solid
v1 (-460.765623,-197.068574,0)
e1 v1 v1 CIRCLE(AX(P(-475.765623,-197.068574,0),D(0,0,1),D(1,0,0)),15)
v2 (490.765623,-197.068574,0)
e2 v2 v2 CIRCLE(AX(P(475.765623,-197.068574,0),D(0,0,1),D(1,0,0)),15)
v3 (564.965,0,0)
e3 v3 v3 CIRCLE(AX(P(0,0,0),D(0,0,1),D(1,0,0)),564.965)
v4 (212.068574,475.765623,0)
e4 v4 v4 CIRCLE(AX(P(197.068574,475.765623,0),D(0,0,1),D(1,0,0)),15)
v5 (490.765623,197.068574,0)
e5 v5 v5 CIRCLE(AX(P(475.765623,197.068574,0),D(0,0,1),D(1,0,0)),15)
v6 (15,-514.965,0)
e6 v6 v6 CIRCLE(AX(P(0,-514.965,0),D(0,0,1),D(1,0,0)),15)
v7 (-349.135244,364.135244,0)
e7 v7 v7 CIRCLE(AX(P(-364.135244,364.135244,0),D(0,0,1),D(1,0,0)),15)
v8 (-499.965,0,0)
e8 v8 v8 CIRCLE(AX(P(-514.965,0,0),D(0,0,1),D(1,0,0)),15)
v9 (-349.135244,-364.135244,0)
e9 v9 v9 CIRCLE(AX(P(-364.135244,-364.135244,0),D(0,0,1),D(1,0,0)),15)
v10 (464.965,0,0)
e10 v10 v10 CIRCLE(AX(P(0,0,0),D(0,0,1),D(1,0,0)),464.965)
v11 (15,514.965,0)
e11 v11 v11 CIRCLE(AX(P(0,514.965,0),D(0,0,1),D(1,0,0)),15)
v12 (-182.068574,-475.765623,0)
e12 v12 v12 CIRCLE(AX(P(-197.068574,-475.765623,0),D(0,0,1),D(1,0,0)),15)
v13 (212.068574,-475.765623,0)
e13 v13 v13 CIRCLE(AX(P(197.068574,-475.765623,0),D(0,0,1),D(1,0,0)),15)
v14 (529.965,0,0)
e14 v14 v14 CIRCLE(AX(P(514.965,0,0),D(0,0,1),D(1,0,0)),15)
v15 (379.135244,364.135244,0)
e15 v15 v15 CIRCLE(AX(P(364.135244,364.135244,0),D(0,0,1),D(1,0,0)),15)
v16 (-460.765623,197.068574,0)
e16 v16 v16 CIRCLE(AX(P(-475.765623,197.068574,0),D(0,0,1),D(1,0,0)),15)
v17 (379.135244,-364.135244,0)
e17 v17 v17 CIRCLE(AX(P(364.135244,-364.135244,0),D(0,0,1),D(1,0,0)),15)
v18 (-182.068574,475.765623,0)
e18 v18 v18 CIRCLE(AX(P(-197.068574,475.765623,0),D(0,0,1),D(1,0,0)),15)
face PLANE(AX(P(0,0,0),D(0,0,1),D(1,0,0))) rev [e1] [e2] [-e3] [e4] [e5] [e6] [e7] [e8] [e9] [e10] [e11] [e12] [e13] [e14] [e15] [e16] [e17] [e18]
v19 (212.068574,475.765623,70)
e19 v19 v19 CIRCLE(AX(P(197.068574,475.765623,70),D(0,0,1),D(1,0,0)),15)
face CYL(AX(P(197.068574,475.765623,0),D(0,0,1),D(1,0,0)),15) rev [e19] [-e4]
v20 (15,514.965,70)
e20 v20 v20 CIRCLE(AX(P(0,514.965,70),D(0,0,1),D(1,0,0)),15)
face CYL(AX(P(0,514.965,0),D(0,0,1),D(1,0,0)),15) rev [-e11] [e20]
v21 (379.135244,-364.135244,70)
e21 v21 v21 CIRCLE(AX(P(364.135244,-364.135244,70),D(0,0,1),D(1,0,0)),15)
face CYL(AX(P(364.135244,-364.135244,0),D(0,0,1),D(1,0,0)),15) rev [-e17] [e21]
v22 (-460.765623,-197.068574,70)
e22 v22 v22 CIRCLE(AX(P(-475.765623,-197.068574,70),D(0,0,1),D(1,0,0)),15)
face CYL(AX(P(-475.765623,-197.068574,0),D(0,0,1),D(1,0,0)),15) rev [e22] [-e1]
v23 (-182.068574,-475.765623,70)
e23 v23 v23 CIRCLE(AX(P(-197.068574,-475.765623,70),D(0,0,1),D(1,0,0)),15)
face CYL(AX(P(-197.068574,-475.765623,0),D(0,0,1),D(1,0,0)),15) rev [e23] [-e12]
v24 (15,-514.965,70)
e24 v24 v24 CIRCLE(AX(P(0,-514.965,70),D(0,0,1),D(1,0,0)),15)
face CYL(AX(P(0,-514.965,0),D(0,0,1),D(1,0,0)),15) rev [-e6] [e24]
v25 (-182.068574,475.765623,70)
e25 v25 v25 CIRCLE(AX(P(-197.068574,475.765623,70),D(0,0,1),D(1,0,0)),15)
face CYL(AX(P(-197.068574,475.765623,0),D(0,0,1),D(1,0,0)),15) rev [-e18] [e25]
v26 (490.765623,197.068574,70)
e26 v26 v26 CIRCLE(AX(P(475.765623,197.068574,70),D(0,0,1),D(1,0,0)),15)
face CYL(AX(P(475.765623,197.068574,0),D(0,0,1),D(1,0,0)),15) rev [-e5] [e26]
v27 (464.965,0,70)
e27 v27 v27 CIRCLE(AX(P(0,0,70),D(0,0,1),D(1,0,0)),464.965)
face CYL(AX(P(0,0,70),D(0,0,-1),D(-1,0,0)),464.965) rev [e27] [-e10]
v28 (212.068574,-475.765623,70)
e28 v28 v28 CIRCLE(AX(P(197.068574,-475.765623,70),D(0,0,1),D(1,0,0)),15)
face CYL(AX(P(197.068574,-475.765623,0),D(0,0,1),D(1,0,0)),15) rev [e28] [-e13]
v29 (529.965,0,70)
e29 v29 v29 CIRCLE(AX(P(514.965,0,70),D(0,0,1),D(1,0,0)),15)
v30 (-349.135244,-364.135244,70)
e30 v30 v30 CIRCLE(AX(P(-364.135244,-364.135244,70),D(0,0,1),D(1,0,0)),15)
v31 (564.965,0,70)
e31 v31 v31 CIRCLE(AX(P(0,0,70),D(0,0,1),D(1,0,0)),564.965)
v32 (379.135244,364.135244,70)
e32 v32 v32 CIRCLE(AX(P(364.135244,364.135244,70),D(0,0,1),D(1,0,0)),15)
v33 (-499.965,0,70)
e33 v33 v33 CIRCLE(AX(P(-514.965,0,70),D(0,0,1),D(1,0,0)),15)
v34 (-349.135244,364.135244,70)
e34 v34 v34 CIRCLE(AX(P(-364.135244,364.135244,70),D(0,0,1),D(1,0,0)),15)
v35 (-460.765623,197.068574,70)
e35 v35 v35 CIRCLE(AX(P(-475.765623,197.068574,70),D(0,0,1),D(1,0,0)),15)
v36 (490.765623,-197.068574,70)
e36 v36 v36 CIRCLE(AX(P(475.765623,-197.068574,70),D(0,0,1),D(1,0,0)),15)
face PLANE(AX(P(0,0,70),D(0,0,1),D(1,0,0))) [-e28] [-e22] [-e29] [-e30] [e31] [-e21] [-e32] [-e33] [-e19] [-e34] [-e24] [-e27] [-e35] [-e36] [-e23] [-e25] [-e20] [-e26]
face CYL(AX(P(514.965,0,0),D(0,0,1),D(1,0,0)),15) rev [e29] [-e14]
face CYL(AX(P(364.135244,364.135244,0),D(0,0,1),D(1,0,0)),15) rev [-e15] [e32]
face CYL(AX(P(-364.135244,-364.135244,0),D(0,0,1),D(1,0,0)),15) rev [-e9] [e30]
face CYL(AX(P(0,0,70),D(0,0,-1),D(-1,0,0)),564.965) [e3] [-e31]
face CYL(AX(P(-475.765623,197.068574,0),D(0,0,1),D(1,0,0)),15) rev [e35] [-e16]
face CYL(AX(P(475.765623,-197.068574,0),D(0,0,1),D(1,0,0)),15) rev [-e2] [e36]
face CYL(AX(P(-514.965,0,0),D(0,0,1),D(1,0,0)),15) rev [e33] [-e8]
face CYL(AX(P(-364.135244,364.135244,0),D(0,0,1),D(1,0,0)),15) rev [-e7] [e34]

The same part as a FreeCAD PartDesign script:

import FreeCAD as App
import Part
import Sketcher

V = App.Vector
Q = App.Units.Quantity

doc = App.newDocument("Part")
body = doc.addObject("PartDesign::Body", "Body")

# Sketch on XY plane
sketch1 = body.newObject("Sketcher::SketchObject", "Sketch")
sketch1.AttachmentSupport = (doc.getObject("XY_Plane"), [""])
sketch1.MapMode = "FlatFace"
sketch1.addGeometry(Part.Circle(V(0, 0, 0), V(0, 0, 1), 565), False)
sketch1.addGeometry(Part.Circle(V(0, 0, 0), V(0, 0, 1), 465), False)
sketch1.addConstraint(Sketcher.Constraint("Coincident", 0, 3, -1, 1))
sketch1.addConstraint(Sketcher.Constraint("Coincident", 1, 3, -1, 1))
sketch1.addConstraint(Sketcher.Constraint("Diameter", 0, Q("1129.93 mm")))
sketch1.addConstraint(Sketcher.Constraint("Diameter", 1, Q("929.93 mm")))
pad1 = body.newObject("PartDesign::Pad", "Pad")
pad1.Profile = sketch1
pad1.Length = 70

# Sketch on XY plane
sketch2 = body.newObject("Sketcher::SketchObject", "Sketch001")
sketch2.AttachmentSupport = (doc.getObject("XY_Plane"), [""])
sketch2.MapMode = "FlatFace"
sketch2.AttachmentOffset = App.Placement(V(0, 0, 70), App.Rotation())
sketch2.addGeometry(Part.Circle(V(197, 476, 0), V(0, 0, 1), 15), False)
sketch2.addGeometry(Part.Circle(V(364, 364, 0), V(0, 0, 1), 15), False)
sketch2.addGeometry(Part.Circle(V(476, 197, 0), V(0, 0, 1), 15), False)
sketch2.addGeometry(Part.Circle(V(515, 0, 0), V(0, 0, 1), 15), False)
sketch2.addGeometry(Part.Circle(V(476, -197, 0), V(0, 0, 1), 15), False)
sketch2.addGeometry(Part.Circle(V(364, -364, 0), V(0, 0, 1), 15), False)
sketch2.addGeometry(Part.Circle(V(197, -476, 0), V(0, 0, 1), 15), False)
sketch2.addGeometry(Part.Circle(V(0, -515, 0), V(0, 0, 1), 15), False)
sketch2.addGeometry(Part.Circle(V(-197, -476, 0), V(0, 0, 1), 15), False)
sketch2.addGeometry(Part.Circle(V(-364, -364, 0), V(0, 0, 1), 15), False)
sketch2.addGeometry(Part.Circle(V(-476, -197, 0), V(0, 0, 1), 15), False)
sketch2.addGeometry(Part.Circle(V(-515, 0, 0), V(0, 0, 1), 15), False)
sketch2.addGeometry(Part.Circle(V(-476, 197, 0), V(0, 0, 1), 15), False)
sketch2.addGeometry(Part.Circle(V(-364, 364, 0), V(0, 0, 1), 15), False)
sketch2.addGeometry(Part.Circle(V(-197, 476, 0), V(0, 0, 1), 15), False)
sketch2.addGeometry(Part.Circle(V(0, 515, 0), V(0, 0, 1), 15), False)
sketch2.addConstraint(Sketcher.Constraint("Equal", 0, 1))
sketch2.addConstraint(Sketcher.Constraint("Equal", 1, 2))
sketch2.addConstraint(Sketcher.Constraint("Equal", 2, 3))
sketch2.addConstraint(Sketcher.Constraint("Equal", 3, 4))
sketch2.addConstraint(Sketcher.Constraint("Equal", 4, 5))
sketch2.addConstraint(Sketcher.Constraint("Equal", 5, 6))
sketch2.addConstraint(Sketcher.Constraint("Equal", 6, 7))
sketch2.addConstraint(Sketcher.Constraint("Equal", 7, 8))
sketch2.addConstraint(Sketcher.Constraint("Equal", 8, 9))
sketch2.addConstraint(Sketcher.Constraint("Equal", 9, 10))
sketch2.addConstraint(Sketcher.Constraint("Equal", 10, 11))
sketch2.addConstraint(Sketcher.Constraint("Equal", 11, 12))
sketch2.addConstraint(Sketcher.Constraint("Equal", 12, 13))
sketch2.addConstraint(Sketcher.Constraint("Equal", 13, 14))
sketch2.addConstraint(Sketcher.Constraint("Equal", 14, 15))
sketch2.addConstraint(Sketcher.Constraint("Symmetric", 0, 3, 8, 3, -1, 1))
sketch2.addConstraint(Sketcher.Constraint("Symmetric", 1, 3, 9, 3, -1, 1))
sketch2.addConstraint(Sketcher.Constraint("Symmetric", 2, 3, 10, 3, -1, 1))
sketch2.addConstraint(Sketcher.Constraint("Symmetric", 3, 3, 11, 3, -1, 1))
sketch2.addConstraint(Sketcher.Constraint("Symmetric", 4, 3, 12, 3, -1, 1))
sketch2.addConstraint(Sketcher.Constraint("Symmetric", 5, 3, 13, 3, -1, 1))
sketch2.addConstraint(Sketcher.Constraint("Symmetric", 6, 3, 14, 3, -1, 1))
sketch2.addConstraint(Sketcher.Constraint("Symmetric", 7, 3, 15, 3, -1, 1))
sketch2.addConstraint(Sketcher.Constraint("Symmetric", 6, 3, 8, 3, -2))
sketch2.addConstraint(Sketcher.Constraint("Symmetric", 5, 3, 9, 3, -2))
sketch2.addConstraint(Sketcher.Constraint("Symmetric", 4, 3, 10, 3, -2))
sketch2.addConstraint(Sketcher.Constraint("PointOnObject", 3, 3, -1))
sketch2.addConstraint(Sketcher.Constraint("PointOnObject", 7, 3, -2))
sketch2.addConstraint(Sketcher.Constraint("Diameter", 0, Q("30 mm")))
sketch2.addConstraint(Sketcher.Constraint("DistanceX", -1, 1, 3, 3, Q("514.965 mm")))
sketch2.addConstraint(Sketcher.Constraint("DistanceY", 7, 3, -1, 1, Q("514.965 mm")))
sketch2.addConstraint(Sketcher.Constraint("DistanceX", 0, 3, 1, 3, Q("167.06667 mm")))
sketch2.addConstraint(Sketcher.Constraint("DistanceY", 1, 3, 0, 3, Q("111.63038 mm")))
sketch2.addConstraint(Sketcher.Constraint("DistanceX", 1, 3, 2, 3, Q("111.63038 mm")))
sketch2.addConstraint(Sketcher.Constraint("DistanceY", 2, 3, 1, 3, Q("167.06667 mm")))
sketch2.addConstraint(Sketcher.Constraint("DistanceX", -1, 1, 0, 3, Q("197.068574 mm")))
sketch2.addConstraint(Sketcher.Constraint("DistanceY", -1, 1, 0, 3, Q("475.765623 mm")))
pocket1 = body.newObject("PartDesign::Pocket", "Pocket")
pocket1.Profile = sketch2
pocket1.Type = "ThroughAll"
pocket1.Midplane = True

doc.recompute()
